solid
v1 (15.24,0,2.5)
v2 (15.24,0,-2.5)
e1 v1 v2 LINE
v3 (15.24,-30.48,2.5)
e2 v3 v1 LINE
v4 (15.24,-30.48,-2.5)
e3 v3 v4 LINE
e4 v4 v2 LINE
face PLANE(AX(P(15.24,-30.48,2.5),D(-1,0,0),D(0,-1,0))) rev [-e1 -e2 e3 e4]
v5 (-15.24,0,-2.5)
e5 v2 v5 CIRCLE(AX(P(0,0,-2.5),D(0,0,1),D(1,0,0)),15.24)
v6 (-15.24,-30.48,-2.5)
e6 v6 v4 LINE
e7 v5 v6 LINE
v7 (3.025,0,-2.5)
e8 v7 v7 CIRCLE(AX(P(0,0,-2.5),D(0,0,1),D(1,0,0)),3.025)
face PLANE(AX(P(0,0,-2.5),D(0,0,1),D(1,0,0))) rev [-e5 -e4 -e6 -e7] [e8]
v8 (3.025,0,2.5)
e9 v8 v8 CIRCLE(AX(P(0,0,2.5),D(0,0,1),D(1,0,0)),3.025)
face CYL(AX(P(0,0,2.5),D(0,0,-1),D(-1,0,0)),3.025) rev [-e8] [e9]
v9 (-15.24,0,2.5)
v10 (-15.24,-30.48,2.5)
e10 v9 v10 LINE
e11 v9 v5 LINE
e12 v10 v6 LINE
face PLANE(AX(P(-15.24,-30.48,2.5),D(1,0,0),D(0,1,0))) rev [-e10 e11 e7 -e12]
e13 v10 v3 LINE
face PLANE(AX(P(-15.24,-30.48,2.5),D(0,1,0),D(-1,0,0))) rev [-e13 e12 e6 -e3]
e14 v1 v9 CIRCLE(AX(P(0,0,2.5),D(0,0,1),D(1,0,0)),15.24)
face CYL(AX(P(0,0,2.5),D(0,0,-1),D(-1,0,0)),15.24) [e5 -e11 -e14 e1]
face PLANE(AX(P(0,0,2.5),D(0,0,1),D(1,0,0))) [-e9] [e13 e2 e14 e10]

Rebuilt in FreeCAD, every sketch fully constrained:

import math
import FreeCAD as App
import Part
import Sketcher

V = App.Vector

doc = App.newDocument("Part")
body = doc.addObject("PartDesign::Body", "Body")

sketch1 = body.newObject("Sketcher::SketchObject", "Sketch")
sketch1.AttachmentSupport = (doc.getObject("XY_Plane"), [""])
sketch1.MapMode = "FlatFace"
sketch1.addGeometry([
    Part.LineSegment(V(-15.24, -30.48, 0), V(15.24, -30.48, 0)),
    Part.LineSegment(V(15.24, -30.48, 0), V(15.24, 0, 0)),
    Part.ArcOfCircle(Part.Circle(V(0, 0, 0), V(0, 0, 1), 15.24), math.radians(0), math.radians(180)),
    Part.LineSegment(V(-15.24, 0, 0), V(-15.24, -30.48, 0)),
    Part.Circle(V(0, 0, 0), V(0, 0, 1), 3.025),
], False)
sketch1.addConstraint([
    Sketcher.Constraint("Coincident", 0, 2, 1, 1),
    Sketcher.Constraint("Tangent", 1, 2, 2, 1),
    Sketcher.Constraint("Tangent", 2, 2, 3, 1),
    Sketcher.Constraint("Coincident", 3, 2, 0, 1),
    Sketcher.Constraint("Horizontal", 0),
    Sketcher.Constraint("Vertical", 1),
    Sketcher.Constraint("Vertical", 3),
    Sketcher.Constraint("Coincident", 2, 3, -1, 1),
    Sketcher.Constraint("Coincident", 4, 3, -1, 1),
    Sketcher.Constraint("Equal", 0, 1),
    Sketcher.Constraint("Diameter", 4, 6.05),
    Sketcher.Constraint("Radius", 2, 15.24),
])
pad1 = body.newObject("PartDesign::Pad", "Pad")
pad1.Profile = sketch1
pad1.Length = 5
pad1.Midplane = True

doc.recompute()
